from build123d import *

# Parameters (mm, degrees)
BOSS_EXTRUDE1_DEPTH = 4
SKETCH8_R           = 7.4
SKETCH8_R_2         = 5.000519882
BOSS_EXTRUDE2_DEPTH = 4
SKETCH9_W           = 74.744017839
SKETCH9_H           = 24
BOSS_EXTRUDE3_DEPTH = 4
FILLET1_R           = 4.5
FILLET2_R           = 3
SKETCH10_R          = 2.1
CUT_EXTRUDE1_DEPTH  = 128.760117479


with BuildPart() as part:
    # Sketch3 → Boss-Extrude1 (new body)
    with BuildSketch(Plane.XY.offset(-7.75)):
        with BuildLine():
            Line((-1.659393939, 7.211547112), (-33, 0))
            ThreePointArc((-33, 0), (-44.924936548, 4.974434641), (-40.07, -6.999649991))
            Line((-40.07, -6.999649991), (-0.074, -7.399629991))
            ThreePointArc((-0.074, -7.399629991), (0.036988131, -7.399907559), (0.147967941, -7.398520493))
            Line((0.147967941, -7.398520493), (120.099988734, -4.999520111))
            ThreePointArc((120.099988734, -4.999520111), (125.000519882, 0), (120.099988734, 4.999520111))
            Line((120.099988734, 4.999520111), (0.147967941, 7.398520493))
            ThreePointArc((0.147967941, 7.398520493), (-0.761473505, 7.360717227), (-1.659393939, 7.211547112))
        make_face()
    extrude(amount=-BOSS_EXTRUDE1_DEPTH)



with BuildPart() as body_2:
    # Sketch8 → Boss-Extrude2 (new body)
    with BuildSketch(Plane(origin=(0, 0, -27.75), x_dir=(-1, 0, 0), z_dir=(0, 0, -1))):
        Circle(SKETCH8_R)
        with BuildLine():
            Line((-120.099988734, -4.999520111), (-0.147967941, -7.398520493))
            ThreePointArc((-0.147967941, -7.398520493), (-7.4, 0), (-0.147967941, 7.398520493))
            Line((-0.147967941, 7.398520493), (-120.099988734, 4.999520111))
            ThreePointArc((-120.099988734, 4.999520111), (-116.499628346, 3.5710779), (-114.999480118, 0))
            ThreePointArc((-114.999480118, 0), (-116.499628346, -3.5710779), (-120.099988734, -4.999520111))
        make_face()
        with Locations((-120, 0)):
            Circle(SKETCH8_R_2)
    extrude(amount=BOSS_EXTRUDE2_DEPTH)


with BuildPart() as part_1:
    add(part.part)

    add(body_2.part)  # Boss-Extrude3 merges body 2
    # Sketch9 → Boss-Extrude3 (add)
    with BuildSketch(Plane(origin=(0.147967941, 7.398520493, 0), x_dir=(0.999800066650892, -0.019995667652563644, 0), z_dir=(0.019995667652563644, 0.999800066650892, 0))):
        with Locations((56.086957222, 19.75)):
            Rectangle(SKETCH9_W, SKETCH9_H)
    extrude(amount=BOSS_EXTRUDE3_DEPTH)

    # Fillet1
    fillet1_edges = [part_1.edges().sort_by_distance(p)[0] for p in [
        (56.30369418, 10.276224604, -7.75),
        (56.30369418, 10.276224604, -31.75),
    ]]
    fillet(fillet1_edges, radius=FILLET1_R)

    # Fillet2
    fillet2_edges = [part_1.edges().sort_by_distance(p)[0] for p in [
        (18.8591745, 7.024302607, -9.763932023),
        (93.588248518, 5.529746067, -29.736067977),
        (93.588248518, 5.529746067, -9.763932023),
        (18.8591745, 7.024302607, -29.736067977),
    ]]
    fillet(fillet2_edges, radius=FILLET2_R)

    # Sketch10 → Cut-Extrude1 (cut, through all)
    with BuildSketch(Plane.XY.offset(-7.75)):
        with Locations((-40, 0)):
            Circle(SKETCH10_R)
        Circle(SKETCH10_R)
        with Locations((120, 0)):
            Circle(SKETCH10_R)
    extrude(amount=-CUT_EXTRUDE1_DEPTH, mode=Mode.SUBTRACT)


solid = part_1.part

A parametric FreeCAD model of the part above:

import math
import FreeCAD as App
import Part
import Sketcher

V = App.Vector


def edges_at(feature, points):
    """Names of the edges that pass closest to the given points."""
    edges = feature.Shape.Edges
    near = lambda p: min(range(len(edges)), key=lambda i: edges[i].distToShape(Part.Vertex(*p))[0])
    return sorted({f"Edge{near(p) + 1}" for p in points})

doc = App.newDocument("Part")
params = doc.addObject("Spreadsheet::Sheet", "Params")
for row, (alias, value) in enumerate([
    ("sketch1_radius", "7 mm"),
    ("sketch1_radius2", "7.399998 mm"),
    ("pad1_length", "4 mm"),
    ("sketch2_radius", "7.4 mm"),
    ("pad2_length", "4 mm"),
    ("sketch3_height", "24 mm"),
    ("pad3_length", "4 mm"),
    ("fillet_radius", "4.5 mm"),
    ("fillet2_radius", "3 mm"),
    ("sketch4_diameter", "4.2 mm"),
], start=1):
    params.set(f"A{row}", alias)
    params.set(f"B{row}", "=" + value)
    params.setAlias(f"B{row}", alias)

body = doc.addObject("PartDesign::Body", "Body")

# Sketch on XY plane
sketch1 = doc.addObject("Sketcher::SketchObject", "Sketch")
body.addObject(sketch1)
sketch1.AttachmentSupport = (doc.XY_Plane, [""])
sketch1.MapMode = "FlatFace"
sketch1.AttachmentOffset = App.Placement(V(0, 0, -7.75), App.Rotation())
sketch1.addGeometry([
    Part.LineSegment(V(-1.66, 7.21, 0), V(-33, 0, 0)),  # 0
    Part.ArcOfCircle(Part.Circle(V(-40, 0, 0), V(0, 0, 1), 7), math.radians(0), math.radians(269)),  # 1
    Part.LineSegment(V(-40.07, -7, 0), V(-0.07, -7.4, 0)),  # 2
    Part.ArcOfCircle(Part.Circle(V(0, 0, 0), V(0, 0, 1), 7.4), math.radians(-90.57), math.radians(-88.85)),  # 3
    Part.LineSegment(V(0.15, -7.4, 0), V(120.1, -5, 0)),  # 4
    Part.ArcOfCircle(Part.Circle(V(120, 0, 0), V(0, 0, 1), 5), math.radians(-89), math.radians(89)),  # 5
    Part.LineSegment(V(120.1, 5, 0), V(0.15, 7.4, 0)),  # 6
    Part.ArcOfCircle(Part.Circle(V(0, 0, 0), V(0, 0, 1), 7.4), math.radians(88.85), math.radians(102.96)),  # 7
], False)
sketch1.addConstraint([
    Sketcher.Constraint("Coincident", 0, 2, 1, 1),
    Sketcher.Constraint("Tangent", 1, 2, 2, 1),
    Sketcher.Constraint("Tangent", 2, 2, 3, 1),
    Sketcher.Constraint("Tangent", 3, 2, 4, 1),
    Sketcher.Constraint("Tangent", 4, 2, 5, 1),
    Sketcher.Constraint("Tangent", 5, 2, 6, 1),
    Sketcher.Constraint("Tangent", 6, 2, 7, 1),
    Sketcher.Constraint("Tangent", 7, 2, 0, 1),
    Sketcher.Constraint("Coincident", 3, 3, -1, 1),
    Sketcher.Constraint("Coincident", 7, 3, -1, 1),
    Sketcher.Constraint("Equal", 3, 7),
    Sketcher.Constraint("PointOnObject", 1, 3, -1),
    Sketcher.Constraint("PointOnObject", 5, 3, -1),
    Sketcher.Constraint("PointOnObject", 0, 2, -1),
    Sketcher.Constraint("Radius", 1, 7.0),
    Sketcher.Constraint("Radius", 3, 7.399998),
    Sketcher.Constraint("DistanceX", 1, 3, -1, 1, 40.0),
    Sketcher.Constraint("DistanceX", -1, 1, 5, 3, 120.0),
    Sketcher.Constraint("Radius", 5, 5.00052),
])
sketch1.setExpression("Constraints[14]", "Params.sketch1_radius")
sketch1.setExpression("Constraints[15]", "Params.sketch1_radius2")
pad1 = doc.addObject("PartDesign::Pad", "Pad")
body.addObject(pad1)
pad1.Profile = sketch1
pad1.setExpression("Length", "Params.pad1_length")
pad1.Reversed = True
body2 = doc.addObject("PartDesign::Body", "Body001")

# Sketch on XY plane
sketch2 = doc.addObject("Sketcher::SketchObject", "Sketch001")
body2.addObject(sketch2)
sketch2.AttachmentSupport = (doc.getObject("XY_Plane001"), [""])
sketch2.MapMode = "FlatFace"
sketch2.AttachmentOffset = App.Placement(V(0, 0, -27.75), App.Rotation())
sketch2.addGeometry([
    Part.LineSegment(V(0, 7, 0), V(120, 5, 0)),
    Part.ArcOfCircle(Part.Circle(V(120, 0, 0), V(0, 0, 1), 5), math.radians(-89), math.radians(89)),
    Part.LineSegment(V(120, -5, 0), V(0, -7, 0)),
    Part.ArcOfCircle(Part.Circle(V(0, 0, 0), V(0, 0, 1), 7), math.radians(89), math.radians(271)),
], False)
sketch2.addConstraint([
    Sketcher.Constraint("Tangent", 0, 2, 1, 2),
    Sketcher.Constraint("Tangent", 1, 1, 2, 1),
    Sketcher.Constraint("Tangent", 2, 2, 3, 2),
    Sketcher.Constraint("Tangent", 3, 1, 0, 1),
    Sketcher.Constraint("Coincident", 3, 3, -1, 1),
    Sketcher.Constraint("PointOnObject", 1, 3, -1),
    Sketcher.Constraint("Radius", 3, 7.4),
    Sketcher.Constraint("DistanceX", -1, 1, 1, 3, 120.0),
    Sketcher.Constraint("Radius", 1, 5.00052),
])
sketch2.setExpression("Constraints[6]", "Params.sketch2_radius")
pad2 = doc.addObject("PartDesign::Pad", "Pad001")
body2.addObject(pad2)
pad2.Profile = sketch2
pad2.setExpression("Length", "Params.pad2_length")
pad2.Reversed = True
body.AllowCompound = True
doc.recompute()

boolean = doc.addObject("PartDesign::Boolean", "Boolean")
body.addObject(boolean)
boolean.Type = "Fuse"
boolean.addObjects([body2])

# Sketch on an angled plane
sketch3 = doc.addObject("Sketcher::SketchObject", "Sketch002")
body.addObject(sketch3)
sketch3.Placement = App.Placement(V(0.147968, 7.39852, 0), App.Rotation(V(0.999800067, -0.019995668, 0), V(0, 0, -1.000000001), V(0.019995668, 0.999800067, 0), "ZXY"))
sketch3.addGeometry([
    Part.LineSegment(V(19, 32, 0), V(19, 8, 0)),
    Part.LineSegment(V(19, 8, 0), V(93, 8, 0)),
    Part.LineSegment(V(93, 8, 0), V(93, 32, 0)),
    Part.LineSegment(V(93, 32, 0), V(19, 32, 0)),
], False)
sketch3.addConstraint([
    Sketcher.Constraint("Coincident", 0, 2, 1, 1),
    Sketcher.Constraint("Coincident", 1, 2, 2, 1),
    Sketcher.Constraint("Coincident", 2, 2, 3, 1),
    Sketcher.Constraint("Coincident", 3, 2, 0, 1),
    Sketcher.Constraint("Vertical", 0),
    Sketcher.Constraint("Horizontal", 1),
    Sketcher.Constraint("Vertical", 2),
    Sketcher.Constraint("Horizontal", 3),
    Sketcher.Constraint("DistanceY", 0, 2, 0, 1, 24.0),
    Sketcher.Constraint("DistanceY", -1, 1, 0, 2, 7.75),
    Sketcher.Constraint("DistanceX", 1, 1, 1, 2, 74.744018),
    Sketcher.Constraint("DistanceX", -1, 1, 0, 2, 18.714948),
])
sketch3.setExpression("Constraints[8]", "Params.sketch3_height")
pad3 = doc.addObject("PartDesign::Pad", "Pad002")
body.addObject(pad3)
pad3.Profile = sketch3
pad3.setExpression("Length", "Params.pad3_length")
doc.recompute()

fillet = doc.addObject("PartDesign::Fillet", "Fillet")
body.addObject(fillet)
fillet.Base = (pad3, edges_at(pad3, [(56.304, 10.276, -7.75), (56.304, 10.276, -31.75)]))
fillet.setExpression("Radius", "Params.fillet_radius")
doc.recompute()

fillet2 = doc.addObject("PartDesign::Fillet", "Fillet001")
body.addObject(fillet2)
fillet2.Base = (fillet, edges_at(fillet, [
    (18.859, 7.024, -9.764),
    (93.588, 5.53, -29.736),
    (93.588, 5.53, -9.764),
    (18.859, 7.024, -29.736),
]))
fillet2.setExpression("Radius", "Params.fillet2_radius")

# Sketch on XY plane
sketch4 = doc.addObject("Sketcher::SketchObject", "Sketch003")
body.addObject(sketch4)
sketch4.AttachmentSupport = (doc.XY_Plane, [""])
sketch4.MapMode = "FlatFace"
sketch4.AttachmentOffset = App.Placement(V(0, 0, -7.75), App.Rotation())
sketch4.addGeometry([
    Part.Circle(V(-40, 0, 0), V(0, 0, 1), 2.1),
    Part.Circle(V(0, 0, 0), V(0, 0, 1), 2.1),
    Part.Circle(V(120, 0, 0), V(0, 0, 1), 2.1),
], False)
sketch4.addConstraint([
    Sketcher.Constraint("Coincident", 1, 3, -1, 1),
    Sketcher.Constraint("Equal", 0, 1),
    Sketcher.Constraint("Equal", 1, 2),
    Sketcher.Constraint("PointOnObject", 0, 3, -1),
    Sketcher.Constraint("PointOnObject", 2, 3, -1),
    Sketcher.Constraint("Diameter", 0, 4.2),
    Sketcher.Constraint("DistanceX", 0, 3, -1, 1, 40.0),
    Sketcher.Constraint("DistanceX", -1, 1, 2, 3, 120.0),
])
sketch4.setExpression("Constraints[5]", "Params.sketch4_diameter")
pocket1 = doc.addObject("PartDesign::Pocket", "Pocket")
body.addObject(pocket1)
pocket1.Profile = sketch4
pocket1.Type = "ThroughAll"

doc.recompute()
